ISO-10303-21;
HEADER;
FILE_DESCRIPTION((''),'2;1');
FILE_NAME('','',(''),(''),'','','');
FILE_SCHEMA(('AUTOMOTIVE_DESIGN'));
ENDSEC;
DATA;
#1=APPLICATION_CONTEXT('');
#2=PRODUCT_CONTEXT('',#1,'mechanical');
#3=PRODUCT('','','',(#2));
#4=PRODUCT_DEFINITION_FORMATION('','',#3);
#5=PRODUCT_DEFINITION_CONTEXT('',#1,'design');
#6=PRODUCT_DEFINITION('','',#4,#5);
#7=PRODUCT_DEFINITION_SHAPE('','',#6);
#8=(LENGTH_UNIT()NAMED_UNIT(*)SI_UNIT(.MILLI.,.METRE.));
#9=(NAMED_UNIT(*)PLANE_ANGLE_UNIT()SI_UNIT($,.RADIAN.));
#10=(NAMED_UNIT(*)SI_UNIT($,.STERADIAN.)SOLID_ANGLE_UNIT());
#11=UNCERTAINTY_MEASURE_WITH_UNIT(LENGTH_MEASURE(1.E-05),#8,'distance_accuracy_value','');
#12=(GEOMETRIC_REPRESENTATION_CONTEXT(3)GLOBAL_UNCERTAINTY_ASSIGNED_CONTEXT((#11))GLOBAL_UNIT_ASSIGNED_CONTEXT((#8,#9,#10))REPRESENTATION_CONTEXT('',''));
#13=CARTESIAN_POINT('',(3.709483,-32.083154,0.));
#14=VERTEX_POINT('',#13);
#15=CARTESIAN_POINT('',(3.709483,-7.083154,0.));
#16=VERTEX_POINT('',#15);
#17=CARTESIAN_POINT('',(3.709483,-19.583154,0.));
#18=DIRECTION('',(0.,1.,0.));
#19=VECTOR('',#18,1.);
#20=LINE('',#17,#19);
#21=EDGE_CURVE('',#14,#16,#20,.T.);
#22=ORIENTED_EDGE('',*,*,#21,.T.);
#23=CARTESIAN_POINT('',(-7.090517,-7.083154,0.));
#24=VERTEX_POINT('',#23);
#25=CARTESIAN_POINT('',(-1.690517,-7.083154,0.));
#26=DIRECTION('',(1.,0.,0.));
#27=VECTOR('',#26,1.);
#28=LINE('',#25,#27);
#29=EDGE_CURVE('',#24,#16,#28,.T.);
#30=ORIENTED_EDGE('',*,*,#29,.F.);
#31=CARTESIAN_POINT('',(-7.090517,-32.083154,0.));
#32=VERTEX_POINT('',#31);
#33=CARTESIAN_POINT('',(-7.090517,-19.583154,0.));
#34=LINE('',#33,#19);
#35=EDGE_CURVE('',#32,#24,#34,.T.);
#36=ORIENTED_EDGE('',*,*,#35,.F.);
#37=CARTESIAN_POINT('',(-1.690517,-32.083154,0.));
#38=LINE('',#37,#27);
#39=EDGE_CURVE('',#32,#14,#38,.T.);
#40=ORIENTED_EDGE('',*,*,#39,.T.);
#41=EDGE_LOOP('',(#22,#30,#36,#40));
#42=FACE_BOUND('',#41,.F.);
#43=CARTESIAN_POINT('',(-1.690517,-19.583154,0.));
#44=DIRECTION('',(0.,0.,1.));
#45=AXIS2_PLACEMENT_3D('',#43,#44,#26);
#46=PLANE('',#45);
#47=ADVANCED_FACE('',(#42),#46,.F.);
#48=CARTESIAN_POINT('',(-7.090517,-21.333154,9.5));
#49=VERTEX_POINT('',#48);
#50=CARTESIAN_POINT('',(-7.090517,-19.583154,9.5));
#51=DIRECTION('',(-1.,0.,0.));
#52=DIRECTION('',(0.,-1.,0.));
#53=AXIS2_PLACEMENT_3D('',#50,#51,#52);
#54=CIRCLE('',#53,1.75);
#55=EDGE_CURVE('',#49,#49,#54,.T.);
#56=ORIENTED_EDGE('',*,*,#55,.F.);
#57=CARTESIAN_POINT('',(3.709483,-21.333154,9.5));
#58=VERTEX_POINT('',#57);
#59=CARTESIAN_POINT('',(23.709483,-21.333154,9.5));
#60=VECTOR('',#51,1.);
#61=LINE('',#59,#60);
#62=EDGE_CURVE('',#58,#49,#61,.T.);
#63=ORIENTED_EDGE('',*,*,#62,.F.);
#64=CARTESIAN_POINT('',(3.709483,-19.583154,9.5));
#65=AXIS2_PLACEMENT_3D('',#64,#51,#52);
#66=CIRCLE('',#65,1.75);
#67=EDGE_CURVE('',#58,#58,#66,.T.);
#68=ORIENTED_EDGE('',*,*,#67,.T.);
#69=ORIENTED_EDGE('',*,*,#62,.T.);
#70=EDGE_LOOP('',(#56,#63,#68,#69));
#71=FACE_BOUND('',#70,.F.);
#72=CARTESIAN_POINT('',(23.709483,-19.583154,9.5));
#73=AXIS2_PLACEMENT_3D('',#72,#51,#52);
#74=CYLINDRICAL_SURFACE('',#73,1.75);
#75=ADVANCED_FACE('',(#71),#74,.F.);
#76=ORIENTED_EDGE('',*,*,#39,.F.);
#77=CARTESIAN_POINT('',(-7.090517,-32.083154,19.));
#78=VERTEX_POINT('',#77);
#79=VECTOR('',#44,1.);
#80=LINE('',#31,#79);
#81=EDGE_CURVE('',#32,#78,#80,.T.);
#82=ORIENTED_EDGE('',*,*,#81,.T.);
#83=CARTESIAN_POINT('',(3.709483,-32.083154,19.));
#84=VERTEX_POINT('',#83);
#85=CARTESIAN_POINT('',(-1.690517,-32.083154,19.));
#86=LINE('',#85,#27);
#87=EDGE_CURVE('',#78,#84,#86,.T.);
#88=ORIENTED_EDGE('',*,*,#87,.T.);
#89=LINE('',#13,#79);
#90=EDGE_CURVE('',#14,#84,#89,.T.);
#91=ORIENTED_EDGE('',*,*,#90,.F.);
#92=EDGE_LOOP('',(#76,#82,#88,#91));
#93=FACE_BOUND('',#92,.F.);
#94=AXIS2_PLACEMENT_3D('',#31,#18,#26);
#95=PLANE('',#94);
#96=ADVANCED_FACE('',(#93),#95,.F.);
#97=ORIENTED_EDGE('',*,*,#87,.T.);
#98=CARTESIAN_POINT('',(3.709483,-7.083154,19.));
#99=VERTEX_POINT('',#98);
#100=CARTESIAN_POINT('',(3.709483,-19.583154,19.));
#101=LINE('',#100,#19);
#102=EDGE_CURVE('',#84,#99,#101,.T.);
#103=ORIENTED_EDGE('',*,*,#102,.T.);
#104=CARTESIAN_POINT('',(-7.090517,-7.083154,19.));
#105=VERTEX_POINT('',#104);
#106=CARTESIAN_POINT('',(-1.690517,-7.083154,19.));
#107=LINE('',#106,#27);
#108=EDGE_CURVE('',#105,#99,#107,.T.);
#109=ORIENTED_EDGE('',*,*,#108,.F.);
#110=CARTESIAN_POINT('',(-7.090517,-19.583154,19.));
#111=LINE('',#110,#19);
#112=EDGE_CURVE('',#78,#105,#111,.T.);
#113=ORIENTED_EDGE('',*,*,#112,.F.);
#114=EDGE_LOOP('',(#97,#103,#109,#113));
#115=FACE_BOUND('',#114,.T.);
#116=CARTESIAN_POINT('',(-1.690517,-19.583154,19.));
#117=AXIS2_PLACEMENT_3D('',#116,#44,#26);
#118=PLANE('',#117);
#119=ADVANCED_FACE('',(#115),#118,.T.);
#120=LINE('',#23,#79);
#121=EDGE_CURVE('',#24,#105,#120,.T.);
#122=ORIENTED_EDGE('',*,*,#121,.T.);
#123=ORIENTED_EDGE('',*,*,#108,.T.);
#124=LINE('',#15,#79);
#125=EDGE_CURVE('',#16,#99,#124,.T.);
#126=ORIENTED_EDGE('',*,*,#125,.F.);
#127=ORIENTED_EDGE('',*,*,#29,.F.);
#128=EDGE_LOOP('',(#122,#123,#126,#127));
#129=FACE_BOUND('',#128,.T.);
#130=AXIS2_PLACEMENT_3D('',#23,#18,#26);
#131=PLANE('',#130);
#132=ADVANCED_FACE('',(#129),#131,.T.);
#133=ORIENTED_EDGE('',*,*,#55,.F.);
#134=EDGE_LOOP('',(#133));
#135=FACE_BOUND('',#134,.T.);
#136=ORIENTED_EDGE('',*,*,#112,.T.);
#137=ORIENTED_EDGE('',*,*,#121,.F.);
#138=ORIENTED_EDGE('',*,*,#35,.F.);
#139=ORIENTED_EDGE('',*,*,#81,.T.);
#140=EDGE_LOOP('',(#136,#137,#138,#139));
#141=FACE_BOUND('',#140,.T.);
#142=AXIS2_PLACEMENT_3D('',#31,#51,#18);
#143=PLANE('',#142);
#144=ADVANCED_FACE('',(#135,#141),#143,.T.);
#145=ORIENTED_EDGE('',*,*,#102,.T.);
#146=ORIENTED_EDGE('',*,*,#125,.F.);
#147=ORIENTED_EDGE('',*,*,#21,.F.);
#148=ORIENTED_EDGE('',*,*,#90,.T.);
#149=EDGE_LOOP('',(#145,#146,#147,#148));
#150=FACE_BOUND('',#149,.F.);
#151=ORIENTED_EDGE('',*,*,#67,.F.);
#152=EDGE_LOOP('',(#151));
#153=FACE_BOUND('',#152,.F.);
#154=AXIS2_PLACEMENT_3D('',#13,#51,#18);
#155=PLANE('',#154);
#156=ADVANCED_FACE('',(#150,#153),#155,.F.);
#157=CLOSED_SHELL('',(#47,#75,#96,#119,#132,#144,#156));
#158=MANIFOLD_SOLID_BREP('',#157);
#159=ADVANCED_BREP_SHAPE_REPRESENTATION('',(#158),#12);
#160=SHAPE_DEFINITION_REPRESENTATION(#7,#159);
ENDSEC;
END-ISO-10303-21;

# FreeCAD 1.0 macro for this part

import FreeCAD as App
import Part
import Sketcher
Q = App.Units.Quantity

doc = App.newDocument("Part")
body = doc.addObject("PartDesign::Body", "Body")

sketch1 = doc.addObject("Sketcher::SketchObject", "Sketch")
body.addObject(sketch1)
sketch1.AttachmentSupport = (doc.XY_Plane, [""])
sketch1.MapMode = "FlatFace"
sketch1.addGeometry([
    Part.LineSegment(App.Vector(-7.090517, -7.083154, 0), App.Vector(-7.090517, -32.083154, 0)),
    Part.LineSegment(App.Vector(-7.090517, -32.083154, 0), App.Vector(3.709483, -32.083154, 0)),
    Part.LineSegment(App.Vector(3.709483, -32.083154, 0), App.Vector(3.709483, -7.083154, 0)),
    Part.LineSegment(App.Vector(3.709483, -7.083154, 0), App.Vector(-7.090517, -7.083154, 0)),
], False)
sketch1.addConstraint([
    Sketcher.Constraint("Coincident", 0, 2, 1, 1),
    Sketcher.Constraint("Coincident", 1, 2, 2, 1),
    Sketcher.Constraint("Coincident", 2, 2, 3, 1),
    Sketcher.Constraint("Coincident", 3, 2, 0, 1),
    Sketcher.Constraint("Vertical", 0),
    Sketcher.Constraint("Horizontal", 1),
    Sketcher.Constraint("Vertical", 2),
    Sketcher.Constraint("Horizontal", 3),
    Sketcher.Constraint("DistanceY", 0, 2, 0, 1, Q("25 mm")),
    Sketcher.Constraint("DistanceX", 1, 1, 1, 2, Q("10.8 mm")),
    Sketcher.Constraint("DistanceX", 0, 2, -1, 1, Q("7.090517 mm")),
    Sketcher.Constraint("DistanceY", 0, 2, -1, 1, Q("32.083154 mm")),
])
pad1 = doc.addObject("PartDesign::Pad", "Pad")
body.addObject(pad1)
pad1.Profile = sketch1
pad1.Length = 19

sketch2 = doc.addObject("Sketcher::SketchObject", "Sketch001")
body.addObject(sketch2)
sketch2.AttachmentSupport = (doc.YZ_Plane, [""])
sketch2.MapMode = "FlatFace"
sketch2.AttachmentOffset = App.Placement(App.Vector(0, 0, 3.709483), App.Rotation())
sketch2.addGeometry(Part.Circle(App.Vector(-19.583154, 9.5, 0), App.Vector(0, 0, 1), 1.75), False)
sketch2.addConstraint([
    Sketcher.Constraint("Diameter", 0, Q("3.5 mm")),
    Sketcher.Constraint("DistanceY", -1, 1, 0, 3, Q("9.5 mm")),
    Sketcher.Constraint("DistanceX", 0, 3, -1, 1, Q("19.583154 mm")),
])
doc.recompute()
hole = doc.addObject("PartDesign::Hole", "Hole")
body.addObject(hole)
hole.Profile = sketch2
hole.ThreadType = "None"
hole.Diameter = 3.5
hole.DepthType = "Dimension"
hole.Depth = 20
hole.DrillPoint = "Flat"

doc.recompute()
